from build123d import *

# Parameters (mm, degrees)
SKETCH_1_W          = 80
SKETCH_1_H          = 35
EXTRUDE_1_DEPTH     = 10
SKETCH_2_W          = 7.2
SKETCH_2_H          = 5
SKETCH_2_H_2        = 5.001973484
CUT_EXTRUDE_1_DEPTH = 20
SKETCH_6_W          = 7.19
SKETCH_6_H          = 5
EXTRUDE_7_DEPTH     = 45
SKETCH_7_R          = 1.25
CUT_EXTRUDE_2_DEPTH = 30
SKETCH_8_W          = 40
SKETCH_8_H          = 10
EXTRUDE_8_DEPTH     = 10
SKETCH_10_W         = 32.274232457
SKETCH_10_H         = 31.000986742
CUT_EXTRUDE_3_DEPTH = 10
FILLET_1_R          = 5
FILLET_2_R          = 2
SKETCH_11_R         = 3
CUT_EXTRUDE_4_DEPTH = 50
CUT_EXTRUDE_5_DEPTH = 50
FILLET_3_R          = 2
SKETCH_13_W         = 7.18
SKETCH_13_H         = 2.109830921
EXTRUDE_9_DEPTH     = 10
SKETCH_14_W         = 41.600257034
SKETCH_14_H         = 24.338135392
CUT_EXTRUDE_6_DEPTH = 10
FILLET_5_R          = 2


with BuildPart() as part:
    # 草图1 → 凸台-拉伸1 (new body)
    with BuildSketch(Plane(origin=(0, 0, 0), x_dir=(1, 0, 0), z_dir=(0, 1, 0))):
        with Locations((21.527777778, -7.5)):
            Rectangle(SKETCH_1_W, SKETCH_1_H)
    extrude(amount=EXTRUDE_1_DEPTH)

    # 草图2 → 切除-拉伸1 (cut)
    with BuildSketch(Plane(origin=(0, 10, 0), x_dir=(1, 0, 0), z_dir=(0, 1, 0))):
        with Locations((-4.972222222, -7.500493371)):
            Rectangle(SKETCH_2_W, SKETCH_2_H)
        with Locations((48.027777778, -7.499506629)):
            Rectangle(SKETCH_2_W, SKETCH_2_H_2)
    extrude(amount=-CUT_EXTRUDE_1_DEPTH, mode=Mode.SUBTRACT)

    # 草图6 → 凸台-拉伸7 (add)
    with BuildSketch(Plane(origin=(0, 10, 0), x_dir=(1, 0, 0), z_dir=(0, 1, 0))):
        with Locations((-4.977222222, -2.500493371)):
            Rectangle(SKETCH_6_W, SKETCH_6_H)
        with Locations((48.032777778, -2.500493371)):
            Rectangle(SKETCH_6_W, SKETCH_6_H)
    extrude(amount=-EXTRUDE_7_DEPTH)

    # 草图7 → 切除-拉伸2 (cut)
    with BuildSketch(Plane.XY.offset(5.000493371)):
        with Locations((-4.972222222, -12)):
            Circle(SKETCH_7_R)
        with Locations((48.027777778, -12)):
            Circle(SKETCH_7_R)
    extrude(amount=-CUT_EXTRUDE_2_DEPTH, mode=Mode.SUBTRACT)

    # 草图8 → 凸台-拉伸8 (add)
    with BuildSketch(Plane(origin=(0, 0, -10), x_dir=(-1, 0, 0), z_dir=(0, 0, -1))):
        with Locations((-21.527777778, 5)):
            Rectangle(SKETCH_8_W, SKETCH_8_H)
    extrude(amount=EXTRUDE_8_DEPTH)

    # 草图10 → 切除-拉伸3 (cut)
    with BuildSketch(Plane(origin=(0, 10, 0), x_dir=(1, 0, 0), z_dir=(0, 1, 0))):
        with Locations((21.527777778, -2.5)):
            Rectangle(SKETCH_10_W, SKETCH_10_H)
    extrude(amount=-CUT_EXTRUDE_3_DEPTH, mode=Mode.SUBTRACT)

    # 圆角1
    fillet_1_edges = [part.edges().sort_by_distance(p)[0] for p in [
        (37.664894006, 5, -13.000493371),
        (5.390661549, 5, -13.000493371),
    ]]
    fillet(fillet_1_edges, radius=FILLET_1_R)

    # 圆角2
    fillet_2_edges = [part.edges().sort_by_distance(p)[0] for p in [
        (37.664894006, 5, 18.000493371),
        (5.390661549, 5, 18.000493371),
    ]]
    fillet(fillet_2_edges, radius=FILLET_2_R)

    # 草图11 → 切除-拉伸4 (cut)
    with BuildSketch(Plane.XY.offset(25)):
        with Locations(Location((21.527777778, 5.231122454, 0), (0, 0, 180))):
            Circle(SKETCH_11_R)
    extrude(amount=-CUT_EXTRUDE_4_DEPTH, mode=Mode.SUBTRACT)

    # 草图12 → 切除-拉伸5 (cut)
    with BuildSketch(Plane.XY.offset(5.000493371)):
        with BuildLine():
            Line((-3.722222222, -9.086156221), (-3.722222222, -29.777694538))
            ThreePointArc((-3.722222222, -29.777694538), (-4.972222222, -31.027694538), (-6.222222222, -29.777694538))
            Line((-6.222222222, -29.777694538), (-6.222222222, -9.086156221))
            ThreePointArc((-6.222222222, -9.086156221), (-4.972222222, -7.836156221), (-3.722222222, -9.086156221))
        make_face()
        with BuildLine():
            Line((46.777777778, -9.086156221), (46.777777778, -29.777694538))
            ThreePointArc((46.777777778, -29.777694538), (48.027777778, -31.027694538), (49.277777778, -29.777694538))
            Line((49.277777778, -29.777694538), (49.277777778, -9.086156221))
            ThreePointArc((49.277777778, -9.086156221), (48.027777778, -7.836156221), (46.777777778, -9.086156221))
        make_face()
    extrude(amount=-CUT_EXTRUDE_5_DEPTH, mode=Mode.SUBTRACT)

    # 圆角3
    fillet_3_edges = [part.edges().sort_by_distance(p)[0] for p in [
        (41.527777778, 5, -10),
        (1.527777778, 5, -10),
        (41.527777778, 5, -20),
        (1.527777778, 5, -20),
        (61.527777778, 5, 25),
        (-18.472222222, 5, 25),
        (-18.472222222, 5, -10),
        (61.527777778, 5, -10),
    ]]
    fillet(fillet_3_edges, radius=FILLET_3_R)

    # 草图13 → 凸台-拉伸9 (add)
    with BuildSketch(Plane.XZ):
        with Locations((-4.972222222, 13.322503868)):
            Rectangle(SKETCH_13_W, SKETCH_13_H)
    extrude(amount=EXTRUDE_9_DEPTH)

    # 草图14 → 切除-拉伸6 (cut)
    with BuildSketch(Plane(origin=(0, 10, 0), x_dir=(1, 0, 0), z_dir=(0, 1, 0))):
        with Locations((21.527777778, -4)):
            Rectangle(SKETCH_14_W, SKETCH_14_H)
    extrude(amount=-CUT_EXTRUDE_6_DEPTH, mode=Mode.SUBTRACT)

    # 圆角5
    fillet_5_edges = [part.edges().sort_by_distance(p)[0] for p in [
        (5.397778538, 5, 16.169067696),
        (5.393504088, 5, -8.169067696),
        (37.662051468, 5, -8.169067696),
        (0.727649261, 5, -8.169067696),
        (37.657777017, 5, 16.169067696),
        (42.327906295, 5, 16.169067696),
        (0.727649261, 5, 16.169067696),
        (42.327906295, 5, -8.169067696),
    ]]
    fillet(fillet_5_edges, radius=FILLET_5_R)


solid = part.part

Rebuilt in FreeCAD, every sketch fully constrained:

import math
import FreeCAD as App
import Part
import Sketcher

V = App.Vector
Q = App.Units.Quantity


def edges_at(feature, points):
    """Names of the edges that pass closest to the given points."""
    edges = feature.Shape.Edges
    near = lambda p: min(range(len(edges)), key=lambda i: edges[i].distToShape(Part.Vertex(*p))[0])
    return sorted({f"Edge{near(p) + 1}" for p in points})


def add_polygon(sketch, points):
    """Adds a closed chain of lines whose ends are joined by coincident constraints."""
    first, n = sketch.GeometryCount, len(points)
    for a, b in zip(points, points[1:] + points[:1]):
        sketch.addGeometry(Part.LineSegment(App.Vector(*a, 0), App.Vector(*b, 0)), False)
    for i in range(n):
        sketch.addConstraint(Sketcher.Constraint("Coincident", first + i, 2, first + (i + 1) % n, 1))

doc = App.newDocument("Part")
body = doc.addObject("PartDesign::Body", "Body")

# Sketch on XZ plane
sketch1 = body.newObject("Sketcher::SketchObject", "Sketch")
sketch1.AttachmentSupport = (doc.getObject("XZ_Plane"), [""])
sketch1.MapMode = "FlatFace"
add_polygon(sketch1, [(-18.472222, -10), (-18.472222, 25), (61.527778, 25), (61.527778, -10)])  # lines 0-3
sketch1.addConstraint([
    Sketcher.Constraint("Vertical", 0),
    Sketcher.Constraint("Horizontal", 1),
    Sketcher.Constraint("Vertical", 2),
    Sketcher.Constraint("Horizontal", 3),
    Sketcher.Constraint("DistanceX", 1, 1, 1, 2, Q("80 mm")),
    Sketcher.Constraint("DistanceY", 0, 1, 0, 2, Q("35 mm")),
    Sketcher.Constraint("DistanceY", -1, 1, 0, 2, Q("25 mm")),
    Sketcher.Constraint("DistanceX", 0, 2, -1, 1, Q("18.472222 mm")),
])
pad1 = body.newObject("PartDesign::Pad", "Pad")
pad1.Profile = sketch1
pad1.Length = 10
pad1.Reversed = True

# Sketch on XZ plane
sketch2 = body.newObject("Sketcher::SketchObject", "Sketch001")
sketch2.AttachmentSupport = (doc.getObject("XZ_Plane"), [""])
sketch2.MapMode = "FlatFace"
sketch2.AttachmentOffset = App.Placement(V(0, 0, -10), App.Rotation())
add_polygon(sketch2, [(-8.572222, 5.000493), (-8.572222, 10.000493), (-1.372222, 10.000493), (-1.372222, 5.000493)])  # lines 0-3
add_polygon(sketch2, [(44.427778, 4.99852), (44.427778, 10.000493), (51.627778, 10.000493), (51.627778, 4.99852)])  # lines 4-7
sketch2.addConstraint([
    Sketcher.Constraint("Vertical", 0),
    Sketcher.Constraint("Horizontal", 1),
    Sketcher.Constraint("Vertical", 2),
    Sketcher.Constraint("Horizontal", 3),
    Sketcher.Constraint("Vertical", 4),
    Sketcher.Constraint("Horizontal", 5),
    Sketcher.Constraint("Vertical", 6),
    Sketcher.Constraint("Horizontal", 7),
    Sketcher.Constraint("Horizontal", 1, 2, 4, 2),
    Sketcher.Constraint("Equal", 3, 5),
    Sketcher.Constraint("DistanceY", 0, 1, 0, 2, Q("5 mm")),
    Sketcher.Constraint("DistanceX", 1, 1, 1, 2, Q("7.2 mm")),
    Sketcher.Constraint("DistanceX", 0, 2, 4, 2, Q("53 mm")),
    Sketcher.Constraint("DistanceY", 4, 1, 4, 2, Q("5.001973 mm")),
    Sketcher.Constraint("DistanceY", -1, 1, 6, 2, Q("4.99852 mm")),
    Sketcher.Constraint("DistanceX", 0, 2, -1, 1, Q("8.572222 mm")),
])
pocket1 = body.newObject("PartDesign::Pocket", "Pocket")
pocket1.Profile = sketch2
pocket1.Length = 20
pocket1.Reversed = True

# Sketch on XZ plane
sketch3 = body.newObject("Sketcher::SketchObject", "Sketch002")
sketch3.AttachmentSupport = (doc.getObject("XZ_Plane"), [""])
sketch3.MapMode = "FlatFace"
sketch3.AttachmentOffset = App.Placement(V(0, 0, -10), App.Rotation())
add_polygon(sketch3, [(-8.572222, 0.000493), (-8.572222, 5.000493), (-1.382222, 5.000493), (-1.382222, 0.000493)])  # lines 0-3
add_polygon(sketch3, [(44.437778, 0.000493), (44.437778, 5.000493), (51.627778, 5.000493), (51.627778, 0.000493)])  # lines 4-7
sketch3.addConstraint([
    Sketcher.Constraint("Vertical", 0),
    Sketcher.Constraint("Horizontal", 1),
    Sketcher.Constraint("Vertical", 2),
    Sketcher.Constraint("Horizontal", 3),
    Sketcher.Constraint("Vertical", 4),
    Sketcher.Constraint("Horizontal", 5),
    Sketcher.Constraint("Vertical", 6),
    Sketcher.Constraint("Horizontal", 7),
    Sketcher.Constraint("Horizontal", 1, 2, 4, 2),
    Sketcher.Constraint("Horizontal", 3, 2, 6, 2),
    Sketcher.Constraint("Equal", 3, 5),
    Sketcher.Constraint("DistanceY", 0, 1, 0, 2, Q("5 mm")),
    Sketcher.Constraint("DistanceX", 1, 1, 1, 2, Q("7.19 mm")),
    Sketcher.Constraint("DistanceX", 0, 2, 5, 2, Q("60.2 mm")),
    Sketcher.Constraint("DistanceX", 0, 2, -1, 1, Q("8.572222 mm")),
    Sketcher.Constraint("DistanceY", -1, 1, 0, 2, Q("5.000493 mm")),
])
pad2 = body.newObject("PartDesign::Pad", "Pad001")
pad2.Profile = sketch3
pad2.Length = 45

# Sketch on XY plane
sketch4 = body.newObject("Sketcher::SketchObject", "Sketch003")
sketch4.AttachmentSupport = (doc.getObject("XY_Plane"), [""])
sketch4.MapMode = "FlatFace"
sketch4.AttachmentOffset = App.Placement(V(0, 0, 5.000493), App.Rotation())
sketch4.addGeometry([
    Part.Circle(V(-4.972222, -12, 0), V(0, 0, 1), 1.25),
    Part.Circle(V(48.027778, -12, 0), V(0, 0, 1), 1.25),
], False)
sketch4.addConstraint([
    Sketcher.Constraint("Equal", 0, 1),
    Sketcher.Constraint("Horizontal", 0, 3, 1, 3),
    Sketcher.Constraint("Diameter", 0, Q("2.5 mm")),
    Sketcher.Constraint("DistanceY", 0, 3, -1, 1, Q("12 mm")),
    Sketcher.Constraint("DistanceX", 0, 3, 1, 3, Q("53 mm")),
    Sketcher.Constraint("DistanceX", 0, 3, -1, 1, Q("4.972222 mm")),
])
pocket2 = body.newObject("PartDesign::Pocket", "Pocket001")
pocket2.Profile = sketch4
pocket2.Length = 30

# Sketch on XY plane
sketch5 = body.newObject("Sketcher::SketchObject", "Sketch004")
sketch5.AttachmentSupport = (doc.getObject("XY_Plane"), [""])
sketch5.MapMode = "FlatFace"
sketch5.AttachmentOffset = App.Placement(V(0, 0, -10), App.Rotation())
add_polygon(sketch5, [(41.527778, 10), (41.527778, 0), (1.527778, 0), (1.527778, 10)])  # lines 0-3
sketch5.addConstraint([
    Sketcher.Constraint("Vertical", 0),
    Sketcher.Constraint("Horizontal", 1),
    Sketcher.Constraint("Vertical", 2),
    Sketcher.Constraint("Horizontal", 3),
    Sketcher.Constraint("PointOnObject", 0, 2, -1),
    Sketcher.Constraint("DistanceX", 1, 2, 1, 1, Q("40 mm")),
    Sketcher.Constraint("DistanceY", 0, 2, 0, 1, Q("10 mm")),
    Sketcher.Constraint("DistanceX", -1, 1, 0, 2, Q("41.527778 mm")),
])
pad3 = body.newObject("PartDesign::Pad", "Pad002")
pad3.Profile = sketch5
pad3.Length = 10
pad3.Reversed = True

# Sketch on XZ plane
sketch6 = body.newObject("Sketcher::SketchObject", "Sketch005")
sketch6.AttachmentSupport = (doc.getObject("XZ_Plane"), [""])
sketch6.MapMode = "FlatFace"
sketch6.AttachmentOffset = App.Placement(V(0, 0, -10), App.Rotation())
add_polygon(sketch6, [(5.390662, -13.000493), (5.390662, 18.000493), (37.664894, 18.000493), (37.664894, -13.000493)])  # lines 0-3
sketch6.addConstraint([
    Sketcher.Constraint("Vertical", 0),
    Sketcher.Constraint("Horizontal", 1),
    Sketcher.Constraint("Vertical", 2),
    Sketcher.Constraint("Horizontal", 3),
    Sketcher.Constraint("DistanceX", 1, 1, 1, 2, Q("32.274232 mm")),
    Sketcher.Constraint("DistanceY", 0, 1, 0, 2, Q("31.000987 mm")),
    Sketcher.Constraint("DistanceX", -1, 1, 0, 2, Q("5.390662 mm")),
    Sketcher.Constraint("DistanceY", -1, 1, 0, 2, Q("18.000493 mm")),
])
pocket3 = body.newObject("PartDesign::Pocket", "Pocket002")
pocket3.Profile = sketch6
pocket3.Length = 10
pocket3.Reversed = True
doc.recompute()

fillet = body.newObject("PartDesign::Fillet", "Fillet")
fillet.Base = (pocket3, edges_at(pocket3, [(37.665, 5, -13), (5.391, 5, -13)]))
fillet.Radius = 5
doc.recompute()

fillet2 = body.newObject("PartDesign::Fillet", "Fillet001")
fillet2.Base = (fillet, edges_at(fillet, [(37.665, 5, 18), (5.391, 5, 18)]))
fillet2.Radius = 2

# Sketch on XY plane
sketch7 = body.newObject("Sketcher::SketchObject", "Sketch006")
sketch7.AttachmentSupport = (doc.getObject("XY_Plane"), [""])
sketch7.MapMode = "FlatFace"
sketch7.AttachmentOffset = App.Placement(V(0, 0, 25), App.Rotation())
sketch7.addGeometry(Part.Circle(V(21.527778, 5.231122, 0), V(0, 0, 1), 3), False)
sketch7.addConstraint([
    Sketcher.Constraint("Diameter", 0, Q("6 mm")),
    Sketcher.Constraint("DistanceX", -1, 1, 0, 3, Q("21.527778 mm")),
    Sketcher.Constraint("DistanceY", -1, 1, 0, 3, Q("5.231122 mm")),
])
pocket4 = body.newObject("PartDesign::Pocket", "Pocket003")
pocket4.Profile = sketch7
pocket4.Length = 50

# Sketch on XY plane
sketch8 = body.newObject("Sketcher::SketchObject", "Sketch007")
sketch8.AttachmentSupport = (doc.getObject("XY_Plane"), [""])
sketch8.MapMode = "FlatFace"
sketch8.AttachmentOffset = App.Placement(V(0, 0, 5.000493), App.Rotation())
sketch8.addGeometry([
    Part.LineSegment(V(-3.722222, -29.777695, 0), V(-3.722222, -9.086156, 0)),  # 0
    Part.ArcOfCircle(Part.Circle(V(-4.972222, -9.086156, 0), V(0, 0, 1), 1.25), math.radians(0), math.radians(180)),  # 1
    Part.LineSegment(V(-6.222222, -9.086156, 0), V(-6.222222, -29.777695, 0)),  # 2
    Part.ArcOfCircle(Part.Circle(V(-4.972222, -29.777695, 0), V(0, 0, 1), 1.25), math.radians(180), math.radians(360)),  # 3
    Part.LineSegment(V(46.777778, -9.086156, 0), V(46.777778, -29.777695, 0)),  # 4
    Part.ArcOfCircle(Part.Circle(V(48.027778, -29.777695, 0), V(0, 0, 1), 1.25), math.radians(180), math.radians(360)),  # 5
    Part.LineSegment(V(49.277778, -29.777695, 0), V(49.277778, -9.086156, 0)),  # 6
    Part.ArcOfCircle(Part.Circle(V(48.027778, -9.086156, 0), V(0, 0, 1), 1.25), math.radians(0), math.radians(180)),  # 7
], False)
sketch8.addConstraint([
    Sketcher.Constraint("Tangent", 0, 2, 1, 1),
    Sketcher.Constraint("Tangent", 1, 2, 2, 1),
    Sketcher.Constraint("Tangent", 2, 2, 3, 1),
    Sketcher.Constraint("Tangent", 3, 2, 0, 1),
    Sketcher.Constraint("Tangent", 4, 2, 5, 1),
    Sketcher.Constraint("Tangent", 5, 2, 6, 1),
    Sketcher.Constraint("Tangent", 6, 2, 7, 1),
    Sketcher.Constraint("Tangent", 7, 2, 4, 1),
    Sketcher.Constraint("Vertical", 0),
    Sketcher.Constraint("Vertical", 2),
    Sketcher.Constraint("Vertical", 4),
    Sketcher.Constraint("Vertical", 6),
    Sketcher.Constraint("Equal", 3, 5),
    Sketcher.Constraint("Horizontal", 3, 3, 5, 3),
    Sketcher.Constraint("Horizontal", 1, 3, 7, 3),
    Sketcher.Constraint("Radius", 1, Q("1.25 mm")),
    Sketcher.Constraint("DistanceX", 3, 3, 5, 3, Q("53 mm")),
    Sketcher.Constraint("DistanceY", 0, 1, 0, 2, Q("20.691538 mm")),
    Sketcher.Constraint("DistanceX", 1, 3, -1, 1, Q("4.972222 mm")),
    Sketcher.Constraint("DistanceY", 1, 3, -1, 1, Q("9.086156 mm")),
])
pocket5 = body.newObject("PartDesign::Pocket", "Pocket004")
pocket5.Profile = sketch8
pocket5.Length = 50
doc.recompute()

fillet3 = body.newObject("PartDesign::Fillet", "Fillet002")
fillet3.Base = (pocket5, edges_at(pocket5, [
    (41.528, 5, -10),
    (1.528, 5, -10),
    (41.528, 5, -20),
    (1.528, 5, -20),
    (61.528, 5, 25),
    (-18.472, 5, 25),
    (-18.472, 5, -10),
    (61.528, 5, -10),
]))
fillet3.Radius = 2

# Sketch on XZ plane
sketch9 = body.newObject("Sketcher::SketchObject", "Sketch008")
sketch9.AttachmentSupport = (doc.getObject("XZ_Plane"), [""])
sketch9.MapMode = "FlatFace"
add_polygon(sketch9, [(-8.562222, 14.377419), (-8.562222, 12.267588), (-1.382222, 12.267588), (-1.382222, 14.377419)])  # lines 0-3
sketch9.addConstraint([
    Sketcher.Constraint("Vertical", 0),
    Sketcher.Constraint("Horizontal", 1),
    Sketcher.Constraint("Vertical", 2),
    Sketcher.Constraint("Horizontal", 3),
    Sketcher.Constraint("DistanceX", 1, 1, 1, 2, Q("7.18 mm")),
    Sketcher.Constraint("DistanceY", 0, 2, 0, 1, Q("2.109831 mm")),
    Sketcher.Constraint("DistanceY", -1, 1, 0, 2, Q("12.267588 mm")),
    Sketcher.Constraint("DistanceX", 0, 2, -1, 1, Q("8.562222 mm")),
])
pad4 = body.newObject("PartDesign::Pad", "Pad003")
pad4.Profile = sketch9
pad4.Length = 10

# Sketch on XZ plane
sketch10 = body.newObject("Sketcher::SketchObject", "Sketch009")
sketch10.AttachmentSupport = (doc.getObject("XZ_Plane"), [""])
sketch10.MapMode = "FlatFace"
sketch10.AttachmentOffset = App.Placement(V(0, 0, -10), App.Rotation())
add_polygon(sketch10, [(0.727649, -8.169068), (0.727649, 16.169068), (42.327906, 16.169068), (42.327906, -8.169068)])  # lines 0-3
sketch10.addConstraint([
    Sketcher.Constraint("Vertical", 0),
    Sketcher.Constraint("Horizontal", 1),
    Sketcher.Constraint("Vertical", 2),
    Sketcher.Constraint("Horizontal", 3),
    Sketcher.Constraint("DistanceX", 1, 1, 1, 2, Q("41.600257 mm")),
    Sketcher.Constraint("DistanceY", 0, 1, 0, 2, Q("24.338135 mm")),
    Sketcher.Constraint("DistanceX", -1, 1, 0, 2, Q("0.727649 mm")),
    Sketcher.Constraint("DistanceY", -1, 1, 0, 2, Q("16.169068 mm")),
])
pocket6 = body.newObject("PartDesign::Pocket", "Pocket005")
pocket6.Profile = sketch10
pocket6.Length = 10
pocket6.Reversed = True
doc.recompute()

fillet4 = body.newObject("PartDesign::Fillet", "Fillet003")
fillet4.Base = (pocket6, edges_at(pocket6, [
    (5.398, 5, 16.169),
    (5.394, 5, -8.169),
    (37.662, 5, -8.169),
    (0.728, 5, -8.169),
    (37.658, 5, 16.169),
    (42.328, 5, 16.169),
    (0.728, 5, 16.169),
    (42.328, 5, -8.169),
]))
fillet4.Radius = 2

doc.recompute()
